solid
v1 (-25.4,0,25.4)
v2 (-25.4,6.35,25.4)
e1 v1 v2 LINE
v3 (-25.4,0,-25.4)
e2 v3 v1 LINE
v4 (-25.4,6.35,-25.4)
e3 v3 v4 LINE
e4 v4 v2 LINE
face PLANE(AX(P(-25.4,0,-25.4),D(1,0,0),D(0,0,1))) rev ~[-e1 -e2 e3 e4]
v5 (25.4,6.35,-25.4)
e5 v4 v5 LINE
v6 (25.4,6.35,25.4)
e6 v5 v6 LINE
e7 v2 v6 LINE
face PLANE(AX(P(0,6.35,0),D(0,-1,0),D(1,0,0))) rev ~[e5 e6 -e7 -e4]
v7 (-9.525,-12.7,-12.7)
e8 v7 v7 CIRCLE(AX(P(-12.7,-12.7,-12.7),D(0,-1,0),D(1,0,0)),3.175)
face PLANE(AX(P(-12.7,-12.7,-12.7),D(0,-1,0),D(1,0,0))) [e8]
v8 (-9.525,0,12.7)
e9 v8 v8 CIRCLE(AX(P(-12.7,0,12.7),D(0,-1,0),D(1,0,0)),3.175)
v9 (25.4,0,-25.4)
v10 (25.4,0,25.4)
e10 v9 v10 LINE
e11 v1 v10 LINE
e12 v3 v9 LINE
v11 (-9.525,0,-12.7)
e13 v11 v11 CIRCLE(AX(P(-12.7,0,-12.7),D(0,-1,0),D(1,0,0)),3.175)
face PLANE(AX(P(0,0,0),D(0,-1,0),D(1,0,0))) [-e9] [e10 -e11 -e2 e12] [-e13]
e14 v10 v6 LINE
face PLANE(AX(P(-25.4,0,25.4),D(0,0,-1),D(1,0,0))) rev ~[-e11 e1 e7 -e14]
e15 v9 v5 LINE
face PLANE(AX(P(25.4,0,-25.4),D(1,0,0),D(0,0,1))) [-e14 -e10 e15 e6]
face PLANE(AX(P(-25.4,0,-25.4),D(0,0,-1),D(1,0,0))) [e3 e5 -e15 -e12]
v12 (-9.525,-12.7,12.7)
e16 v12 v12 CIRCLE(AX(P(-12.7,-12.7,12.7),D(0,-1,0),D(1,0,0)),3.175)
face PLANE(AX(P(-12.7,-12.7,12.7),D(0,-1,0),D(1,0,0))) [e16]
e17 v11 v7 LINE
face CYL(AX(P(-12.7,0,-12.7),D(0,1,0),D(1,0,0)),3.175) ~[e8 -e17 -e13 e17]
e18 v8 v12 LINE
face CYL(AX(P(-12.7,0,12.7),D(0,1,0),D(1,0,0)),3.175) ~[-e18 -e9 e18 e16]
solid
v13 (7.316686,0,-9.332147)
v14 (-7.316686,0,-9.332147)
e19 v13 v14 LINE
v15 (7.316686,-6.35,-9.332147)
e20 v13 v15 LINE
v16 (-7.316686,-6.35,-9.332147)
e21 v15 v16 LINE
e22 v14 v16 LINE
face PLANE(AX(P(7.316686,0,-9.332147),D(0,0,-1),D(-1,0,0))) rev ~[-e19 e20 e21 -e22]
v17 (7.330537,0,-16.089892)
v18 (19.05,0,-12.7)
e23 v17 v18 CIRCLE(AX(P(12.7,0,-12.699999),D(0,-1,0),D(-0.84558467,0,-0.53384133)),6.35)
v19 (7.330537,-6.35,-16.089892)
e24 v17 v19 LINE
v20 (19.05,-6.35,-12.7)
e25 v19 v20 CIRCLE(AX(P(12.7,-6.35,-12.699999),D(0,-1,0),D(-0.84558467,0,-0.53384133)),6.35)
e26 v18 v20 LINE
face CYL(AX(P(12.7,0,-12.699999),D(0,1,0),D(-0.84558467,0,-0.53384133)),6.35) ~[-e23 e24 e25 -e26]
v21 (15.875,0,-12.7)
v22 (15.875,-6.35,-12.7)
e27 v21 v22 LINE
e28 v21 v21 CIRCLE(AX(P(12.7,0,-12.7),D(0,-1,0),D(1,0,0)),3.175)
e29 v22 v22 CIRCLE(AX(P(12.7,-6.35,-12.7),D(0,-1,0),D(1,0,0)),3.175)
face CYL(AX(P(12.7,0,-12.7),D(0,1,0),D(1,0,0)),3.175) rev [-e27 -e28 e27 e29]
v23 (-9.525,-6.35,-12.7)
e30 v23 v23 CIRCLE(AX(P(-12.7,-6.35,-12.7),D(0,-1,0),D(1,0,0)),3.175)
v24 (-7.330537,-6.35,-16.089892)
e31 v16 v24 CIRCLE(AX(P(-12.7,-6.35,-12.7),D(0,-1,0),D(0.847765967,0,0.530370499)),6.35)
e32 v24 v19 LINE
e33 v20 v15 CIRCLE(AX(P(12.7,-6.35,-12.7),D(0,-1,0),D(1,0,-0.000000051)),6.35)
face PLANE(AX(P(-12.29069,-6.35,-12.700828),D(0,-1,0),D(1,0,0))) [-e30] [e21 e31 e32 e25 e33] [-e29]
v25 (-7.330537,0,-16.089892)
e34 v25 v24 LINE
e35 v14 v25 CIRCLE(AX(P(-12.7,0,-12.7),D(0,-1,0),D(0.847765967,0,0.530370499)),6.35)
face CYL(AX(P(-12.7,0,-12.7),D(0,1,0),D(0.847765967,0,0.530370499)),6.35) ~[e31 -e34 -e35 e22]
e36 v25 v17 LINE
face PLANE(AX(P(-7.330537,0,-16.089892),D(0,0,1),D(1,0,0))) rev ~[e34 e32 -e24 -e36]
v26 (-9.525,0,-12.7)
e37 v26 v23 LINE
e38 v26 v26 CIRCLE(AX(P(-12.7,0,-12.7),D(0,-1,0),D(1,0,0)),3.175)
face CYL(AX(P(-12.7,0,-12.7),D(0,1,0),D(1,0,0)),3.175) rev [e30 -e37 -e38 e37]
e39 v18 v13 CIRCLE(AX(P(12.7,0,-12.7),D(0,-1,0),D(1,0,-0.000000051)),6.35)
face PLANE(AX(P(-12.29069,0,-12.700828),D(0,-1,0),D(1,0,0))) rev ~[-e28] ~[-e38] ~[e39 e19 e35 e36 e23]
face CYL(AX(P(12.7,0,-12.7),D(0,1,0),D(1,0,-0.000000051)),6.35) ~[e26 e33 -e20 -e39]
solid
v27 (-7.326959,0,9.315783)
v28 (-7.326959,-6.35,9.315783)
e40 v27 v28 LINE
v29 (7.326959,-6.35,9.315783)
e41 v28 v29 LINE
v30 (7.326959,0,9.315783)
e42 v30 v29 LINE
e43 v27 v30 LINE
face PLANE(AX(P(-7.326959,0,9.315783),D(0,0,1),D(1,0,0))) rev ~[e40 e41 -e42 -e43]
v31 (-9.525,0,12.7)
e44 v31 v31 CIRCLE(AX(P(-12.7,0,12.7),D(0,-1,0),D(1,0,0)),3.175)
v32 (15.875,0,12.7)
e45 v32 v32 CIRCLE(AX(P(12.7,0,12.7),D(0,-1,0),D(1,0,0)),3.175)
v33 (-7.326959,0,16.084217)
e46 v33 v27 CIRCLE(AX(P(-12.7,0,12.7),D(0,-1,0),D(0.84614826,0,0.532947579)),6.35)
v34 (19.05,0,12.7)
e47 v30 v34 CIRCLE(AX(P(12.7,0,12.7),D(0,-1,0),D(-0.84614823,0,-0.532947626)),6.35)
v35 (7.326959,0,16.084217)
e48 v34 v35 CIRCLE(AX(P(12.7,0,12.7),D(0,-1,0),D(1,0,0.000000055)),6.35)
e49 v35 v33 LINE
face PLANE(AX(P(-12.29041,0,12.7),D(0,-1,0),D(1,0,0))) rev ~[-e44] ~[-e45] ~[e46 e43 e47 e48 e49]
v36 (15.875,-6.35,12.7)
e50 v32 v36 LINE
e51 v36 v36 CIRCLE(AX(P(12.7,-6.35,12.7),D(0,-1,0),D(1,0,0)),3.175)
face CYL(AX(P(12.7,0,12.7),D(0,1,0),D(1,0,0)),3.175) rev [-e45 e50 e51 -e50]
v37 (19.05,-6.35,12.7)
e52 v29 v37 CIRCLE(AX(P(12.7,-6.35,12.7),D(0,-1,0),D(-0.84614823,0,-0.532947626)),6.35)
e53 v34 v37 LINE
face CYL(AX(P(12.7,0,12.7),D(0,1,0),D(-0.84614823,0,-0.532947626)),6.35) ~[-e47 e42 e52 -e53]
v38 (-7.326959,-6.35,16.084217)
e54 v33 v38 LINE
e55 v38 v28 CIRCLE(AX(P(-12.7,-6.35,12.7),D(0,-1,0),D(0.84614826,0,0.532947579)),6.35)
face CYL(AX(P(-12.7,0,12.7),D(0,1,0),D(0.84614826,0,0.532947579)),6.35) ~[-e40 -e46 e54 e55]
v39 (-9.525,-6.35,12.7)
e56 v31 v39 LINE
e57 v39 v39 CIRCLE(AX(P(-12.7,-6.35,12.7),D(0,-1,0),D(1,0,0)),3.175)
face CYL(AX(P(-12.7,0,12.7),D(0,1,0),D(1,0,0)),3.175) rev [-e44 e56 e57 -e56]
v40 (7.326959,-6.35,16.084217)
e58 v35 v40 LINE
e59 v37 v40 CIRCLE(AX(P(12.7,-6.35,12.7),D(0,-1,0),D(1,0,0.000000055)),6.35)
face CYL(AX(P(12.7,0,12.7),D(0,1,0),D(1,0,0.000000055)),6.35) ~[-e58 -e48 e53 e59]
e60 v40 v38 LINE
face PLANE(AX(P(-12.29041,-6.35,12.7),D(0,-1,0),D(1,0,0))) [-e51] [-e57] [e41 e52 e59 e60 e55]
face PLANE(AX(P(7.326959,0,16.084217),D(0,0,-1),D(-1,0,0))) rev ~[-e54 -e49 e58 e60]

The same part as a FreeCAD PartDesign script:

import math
import FreeCAD as App
import Part
import Sketcher
Q = App.Units.Quantity

doc = App.newDocument("Part")
body = doc.addObject("PartDesign::Body", "Body")

# Sketch on XZ plane
sketch1 = body.newObject("Sketcher::SketchObject", "Sketch")
sketch1.AttachmentSupport = (doc.getObject("XZ_Plane"), [""])
sketch1.MapMode = "FlatFace"
sketch1.addGeometry([
    Part.LineSegment(App.Vector(-25, 25, 0), App.Vector(-25, -25, 0)),
    Part.LineSegment(App.Vector(-25, -25, 0), App.Vector(25, -25, 0)),
    Part.LineSegment(App.Vector(25, -25, 0), App.Vector(25, 25, 0)),
    Part.LineSegment(App.Vector(25, 25, 0), App.Vector(-25, 25, 0)),
], False)
sketch1.addConstraint([
    Sketcher.Constraint("Coincident", 0, 2, 1, 1),
    Sketcher.Constraint("Coincident", 1, 2, 2, 1),
    Sketcher.Constraint("Coincident", 2, 2, 3, 1),
    Sketcher.Constraint("Coincident", 3, 2, 0, 1),
    Sketcher.Constraint("Vertical", 0),
    Sketcher.Constraint("Horizontal", 1),
    Sketcher.Constraint("Vertical", 2),
    Sketcher.Constraint("Horizontal", 3),
    Sketcher.Constraint("Symmetric", 0, 2, 2, 2, -1, 1),
    Sketcher.Constraint("Equal", 3, 0),
    Sketcher.Constraint("DistanceX", 1, 1, 1, 2, Q("2 in")),
])
pad1 = body.newObject("PartDesign::Pad", "Pad")
pad1.Profile = sketch1
pad1.Length = Q("0.25 in")
pad1.Reversed = True

# Sketch on XZ plane
sketch2 = body.newObject("Sketcher::SketchObject", "Sketch001")
sketch2.AttachmentSupport = (doc.getObject("XZ_Plane"), [""])
sketch2.MapMode = "FlatFace"
sketch2.addGeometry([
    Part.Circle(App.Vector(-12.7, -12.7, 0), App.Vector(0, 0, 1), 3.2),
    Part.Circle(App.Vector(-12.7, 12.7, 0), App.Vector(0, 0, 1), 3.2),
], False)
sketch2.addConstraint([
    Sketcher.Constraint("Equal", 0, 1),
    Sketcher.Constraint("Symmetric", 0, 3, 1, 3, -1),
    Sketcher.Constraint("Diameter", 0, Q("0.25 in")),
    Sketcher.Constraint("DistanceY", 0, 3, 1, 3, Q("1 in")),
    Sketcher.Constraint("DistanceX", 0, 3, -1, 1, Q("0.5 in")),
])
pad2 = body.newObject("PartDesign::Pad", "Pad001")
pad2.Profile = sketch2
pad2.Length = Q("0.5 in")
body2 = doc.addObject("PartDesign::Body", "Body001")
body2.AllowCompound = True

# Sketch on XZ plane
sketch3 = body2.newObject("Sketcher::SketchObject", "Sketch002")
sketch3.AttachmentSupport = (doc.getObject("XZ_Plane001"), [""])
sketch3.MapMode = "FlatFace"
sketch3.addGeometry([
    Part.ArcOfCircle(Part.Circle(App.Vector(-12.7, 12.7, 0), App.Vector(0, 0, 1), 6.3), math.radians(32), math.radians(328)),  # 0
    Part.LineSegment(App.Vector(-7.3, 9.3, 0), App.Vector(7.3, 9.3, 0)),  # 1
    Part.ArcOfCircle(Part.Circle(App.Vector(12.7, 12.7, 0), App.Vector(0, 0, 1), 6.3), math.radians(-148), math.radians(0)),  # 2
    Part.ArcOfCircle(Part.Circle(App.Vector(12.7, 12.7, 0), App.Vector(0, 0, 1), 6.3), math.radians(0), math.radians(148)),  # 3
    Part.LineSegment(App.Vector(7.3, 16.1, 0), App.Vector(-7.3, 16.1, 0)),  # 4
    Part.Circle(App.Vector(-12.7, 12.7, 0), App.Vector(0, 0, 1), 3.2),  # 5
    Part.Circle(App.Vector(12.7, 12.7, 0), App.Vector(0, 0, 1), 3.2),  # 6
    Part.ArcOfCircle(Part.Circle(App.Vector(-12.7, -12.7, 0), App.Vector(0, 0, 1), 6.4), math.radians(32), math.radians(328)),  # 7
    Part.LineSegment(App.Vector(-7.3, -16.1, 0), App.Vector(7.3, -16.1, 0)),  # 8
    Part.ArcOfCircle(Part.Circle(App.Vector(12.7, -12.7, 0), App.Vector(0, 0, 1), 6.4), math.radians(-148), math.radians(0)),  # 9
    Part.ArcOfCircle(Part.Circle(App.Vector(12.7, -12.7, 0), App.Vector(0, 0, 1), 6.4), math.radians(0), math.radians(148)),  # 10
    Part.LineSegment(App.Vector(7.3, -9.3, 0), App.Vector(-7.3, -9.3, 0)),  # 11
    Part.Circle(App.Vector(-12.7, -12.7, 0), App.Vector(0, 0, 1), 3.2),  # 12
    Part.Circle(App.Vector(12.7, -12.7, 0), App.Vector(0, 0, 1), 3.2),  # 13
], False)
sketch3.addConstraint([
    Sketcher.Constraint("Coincident", 0, 2, 1, 1),
    Sketcher.Constraint("Coincident", 1, 2, 2, 1),
    Sketcher.Constraint("Tangent", 2, 2, 3, 1),
    Sketcher.Constraint("Coincident", 3, 2, 4, 1),
    Sketcher.Constraint("Coincident", 4, 2, 0, 1),
    Sketcher.Constraint("Coincident", 7, 2, 8, 1),
    Sketcher.Constraint("Coincident", 8, 2, 9, 1),
    Sketcher.Constraint("Tangent", 9, 2, 10, 1),
    Sketcher.Constraint("Coincident", 10, 2, 11, 1),
    Sketcher.Constraint("Coincident", 11, 2, 7, 1),
    Sketcher.Constraint("Horizontal", 1),
    Sketcher.Constraint("Horizontal", 4),
    Sketcher.Constraint("Horizontal", 8),
    Sketcher.Constraint("Horizontal", 11),
    Sketcher.Constraint("Coincident", 5, 3, 0, 3),
    Sketcher.Constraint("Coincident", 6, 3, 2, 3),
    Sketcher.Constraint("Coincident", 12, 3, 7, 3),
    Sketcher.Constraint("Coincident", 13, 3, 9, 3),
    Sketcher.Constraint("Equal", 0, 2),
    Sketcher.Constraint("Equal", 2, 3),
    Sketcher.Constraint("Equal", 5, 6),
    Sketcher.Constraint("Equal", 3, 7),
    Sketcher.Constraint("Equal", 7, 9),
    Sketcher.Constraint("Equal", 9, 10),
    Sketcher.Constraint("Equal", 6, 12),
    Sketcher.Constraint("Equal", 12, 13),
    Sketcher.Constraint("Symmetric", 2, 3, 7, 3, -1, 1),
    Sketcher.Constraint("Symmetric", 0, 3, 9, 3, -1, 1),
    Sketcher.Constraint("Symmetric", 0, 3, 2, 3, -2),
    Sketcher.Constraint("Horizontal", 6, 3, 2, 2),
    Sketcher.Constraint("Horizontal", 13, 3, 9, 2),
    Sketcher.Constraint("Vertical", 1, 2, 3, 2),
    Sketcher.Constraint("Diameter", 5, Q("0.25 in")),
    Sketcher.Constraint("Radius", 0, Q("0.25 in")),
    Sketcher.Constraint("DistanceX", 0, 3, 2, 3, Q("1 in")),
    Sketcher.Constraint("DistanceY", 7, 3, 0, 3, Q("1 in")),
    Sketcher.Constraint("DistanceX", 1, 1, 1, 2, Q("14.653918 mm")),
    Sketcher.Constraint("DistanceX", 8, 1, 8, 2, Q("14.661074 mm")),
    Sketcher.Constraint("DistanceX", 11, 2, 11, 1, Q("14.633372 mm")),
])
pad3 = body2.newObject("PartDesign::Pad", "Pad002")
pad3.Profile = sketch3
pad3.Length = Q("0.25 in")

doc.recompute()
